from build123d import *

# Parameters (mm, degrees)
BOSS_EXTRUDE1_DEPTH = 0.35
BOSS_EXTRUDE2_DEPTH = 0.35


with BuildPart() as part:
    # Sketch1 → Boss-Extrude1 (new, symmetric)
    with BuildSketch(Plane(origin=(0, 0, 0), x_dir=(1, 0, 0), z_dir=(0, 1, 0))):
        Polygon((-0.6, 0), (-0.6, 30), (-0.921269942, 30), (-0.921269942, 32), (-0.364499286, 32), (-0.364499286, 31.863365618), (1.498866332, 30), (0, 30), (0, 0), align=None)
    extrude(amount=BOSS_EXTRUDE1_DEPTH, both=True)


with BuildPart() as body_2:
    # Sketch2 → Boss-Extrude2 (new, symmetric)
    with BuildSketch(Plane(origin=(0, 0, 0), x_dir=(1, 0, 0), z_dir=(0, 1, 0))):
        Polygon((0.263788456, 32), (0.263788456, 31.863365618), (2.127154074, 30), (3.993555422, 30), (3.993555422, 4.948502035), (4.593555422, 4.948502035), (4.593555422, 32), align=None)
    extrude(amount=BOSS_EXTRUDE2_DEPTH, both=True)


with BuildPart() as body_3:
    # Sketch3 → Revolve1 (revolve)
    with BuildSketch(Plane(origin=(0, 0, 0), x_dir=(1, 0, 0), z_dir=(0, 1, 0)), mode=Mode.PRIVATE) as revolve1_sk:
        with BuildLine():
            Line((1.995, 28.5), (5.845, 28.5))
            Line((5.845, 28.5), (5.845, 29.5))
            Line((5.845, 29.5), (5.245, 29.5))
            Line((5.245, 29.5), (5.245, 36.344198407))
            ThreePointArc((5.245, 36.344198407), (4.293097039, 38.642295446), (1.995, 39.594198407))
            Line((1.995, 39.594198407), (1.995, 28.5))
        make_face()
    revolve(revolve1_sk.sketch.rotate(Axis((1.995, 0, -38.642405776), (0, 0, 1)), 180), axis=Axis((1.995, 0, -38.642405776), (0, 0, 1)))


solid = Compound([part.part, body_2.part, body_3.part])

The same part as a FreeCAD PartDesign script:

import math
import FreeCAD as App
import Part
import Sketcher
Q = App.Units.Quantity


def add_polygon(sketch, points):
    """Adds a closed chain of lines whose ends are joined by coincident constraints."""
    first, n = sketch.GeometryCount, len(points)
    for a, b in zip(points, points[1:] + points[:1]):
        sketch.addGeometry(Part.LineSegment(App.Vector(*a, 0), App.Vector(*b, 0)), False)
    for i in range(n):
        sketch.addConstraint(Sketcher.Constraint("Coincident", first + i, 2, first + (i + 1) % n, 1))

doc = App.newDocument("Part")
body = doc.addObject("PartDesign::Body", "Body")

sketch1 = body.newObject("Sketcher::SketchObject", "Sketch")
sketch1.AttachmentSupport = (doc.getObject("XZ_Plane"), [""])
sketch1.MapMode = "FlatFace"
add_polygon(sketch1, [(-0.6, -30), (-0.6, 0), (0, 0), (0, -30), (1.498866, -30), (-0.364499, -31.863366), (-0.364499, -32), (-0.92127, -32), (-0.92127, -30)])
sketch1.addConstraint([
    Sketcher.Constraint("Vertical", 0),
    Sketcher.Constraint("Horizontal", 1),
    Sketcher.Constraint("Vertical", 2),
    Sketcher.Constraint("Horizontal", 3),
    Sketcher.Constraint("Vertical", 5),
    Sketcher.Constraint("Horizontal", 6),
    Sketcher.Constraint("Vertical", 7),
    Sketcher.Constraint("Horizontal", 8),
    Sketcher.Constraint("Coincident", 1, 2, -1, 1),
    Sketcher.Constraint("Horizontal", 3, 2, 7, 2),
    Sketcher.Constraint("DistanceY", 0, 1, 0, 2, 30.0),
    Sketcher.Constraint("DistanceY", 7, 1, 7, 2, 2.0),
    Sketcher.Constraint("Angle", 4, Q("-135 deg")),
    Sketcher.Constraint("DistanceX", 1, 1, 1, 2, 0.6),
    Sketcher.Constraint("DistanceX", 6, 2, 6, 1, 0.556771),
    Sketcher.Constraint("DistanceX", 8, 1, 8, 2, 0.32127),
    Sketcher.Constraint("DistanceX", 3, 1, 3, 2, 1.498866),
])
pad1 = body.newObject("PartDesign::Pad", "Pad")
pad1.Profile = sketch1
pad1.Length = 0.7
pad1.Midplane = True
body2 = doc.addObject("PartDesign::Body", "Body001")

sketch2 = body2.newObject("Sketcher::SketchObject", "Sketch001")
sketch2.AttachmentSupport = (doc.getObject("XZ_Plane001"), [""])
sketch2.MapMode = "FlatFace"
add_polygon(sketch2, [(0.263788, -32), (0.263788, -31.863366), (2.127154, -30), (3.993555, -30), (3.993555, -4.948502), (4.593555, -4.948502), (4.593555, -32)])
sketch2.addConstraint([
    Sketcher.Constraint("Vertical", 0),
    Sketcher.Constraint("Horizontal", 2),
    Sketcher.Constraint("Vertical", 3),
    Sketcher.Constraint("Horizontal", 4),
    Sketcher.Constraint("Vertical", 5),
    Sketcher.Constraint("Horizontal", 6),
    Sketcher.Constraint("Angle", 1, Q("45 deg")),
    Sketcher.Constraint("DistanceX", 4, 1, 4, 2, 0.6),
    Sketcher.Constraint("DistanceY", 1, 2, -1, 1, 30.0),
    Sketcher.Constraint("DistanceY", 5, 2, -1, 1, 32.0),
    Sketcher.Constraint("DistanceX", 2, 1, 2, 2, 1.866401),
    Sketcher.Constraint("DistanceX", 6, 2, 6, 1, 4.329767),
    Sketcher.Constraint("DistanceY", 3, 1, 3, 2, 25.051498),
    Sketcher.Constraint("DistanceX", -1, 1, 0, 2, 0.263788),
])
pad2 = body2.newObject("PartDesign::Pad", "Pad001")
pad2.Profile = sketch2
pad2.Length = 0.7
pad2.Midplane = True
body3 = doc.addObject("PartDesign::Body", "Body002")

sketch3 = body3.newObject("Sketcher::SketchObject", "Sketch002")
sketch3.AttachmentSupport = (doc.getObject("XZ_Plane002"), [""])
sketch3.MapMode = "FlatFace"
sketch3.addGeometry([
    Part.LineSegment(App.Vector(1.995, -28.5, 0), App.Vector(5.845, -28.5, 0)),
    Part.LineSegment(App.Vector(5.845, -28.5, 0), App.Vector(5.845, -29.5, 0)),
    Part.LineSegment(App.Vector(5.845, -29.5, 0), App.Vector(5.245, -29.5, 0)),
    Part.LineSegment(App.Vector(5.245, -29.5, 0), App.Vector(5.245, -36.344198, 0)),
    Part.ArcOfCircle(Part.Circle(App.Vector(1.995, -36.344198, 0), App.Vector(0, 0, 1), 3.25), math.radians(-90), math.radians(0)),
    Part.LineSegment(App.Vector(1.995, -39.594198, 0), App.Vector(1.995, -28.5, 0)),
], False)
sketch3.addGeometry(Part.LineSegment(App.Vector(1.995, -39.594198, 0), App.Vector(1.995, -28.5, 0)), True)
sketch3.addConstraint([
    Sketcher.Constraint("Coincident", 0, 2, 1, 1),
    Sketcher.Constraint("Coincident", 1, 2, 2, 1),
    Sketcher.Constraint("Coincident", 2, 2, 3, 1),
    Sketcher.Constraint("Tangent", 3, 2, 4, 2),
    Sketcher.Constraint("Coincident", 4, 1, 5, 1),
    Sketcher.Constraint("Coincident", 5, 2, 0, 1),
    Sketcher.Constraint("Horizontal", 0),
    Sketcher.Constraint("Vertical", 1),
    Sketcher.Constraint("Horizontal", 2),
    Sketcher.Constraint("Vertical", 3),
    Sketcher.Constraint("Vertical", 5),
    Sketcher.Constraint("Vertical", 6),
    Sketcher.Constraint("Coincident", 6, 1, 4, 1),
    Sketcher.Constraint("Horizontal", 0, 2, 6, 2),
    Sketcher.Constraint("DistanceY", 1, 2, 1, 1, 1.0),
    Sketcher.Constraint("Radius", 4, 3.25),
    Sketcher.Constraint("DistanceX", 2, 2, 2, 1, 0.6),
    Sketcher.Constraint("DistanceX", 0, 1, 0, 2, 3.85),
    Sketcher.Constraint("DistanceY", 0, 2, -1, 1, 28.5),
    Sketcher.Constraint("DistanceY", 3, 2, 3, 1, 6.844198),
    Sketcher.Constraint("DistanceX", -1, 1, 4, 3, 1.995),
])
revolution = body3.newObject("PartDesign::Revolution", "Revolution")
revolution.Profile = sketch3
revolution.ReferenceAxis = (sketch3, ["Axis0"])
revolution.Angle = 360

doc.recompute()
